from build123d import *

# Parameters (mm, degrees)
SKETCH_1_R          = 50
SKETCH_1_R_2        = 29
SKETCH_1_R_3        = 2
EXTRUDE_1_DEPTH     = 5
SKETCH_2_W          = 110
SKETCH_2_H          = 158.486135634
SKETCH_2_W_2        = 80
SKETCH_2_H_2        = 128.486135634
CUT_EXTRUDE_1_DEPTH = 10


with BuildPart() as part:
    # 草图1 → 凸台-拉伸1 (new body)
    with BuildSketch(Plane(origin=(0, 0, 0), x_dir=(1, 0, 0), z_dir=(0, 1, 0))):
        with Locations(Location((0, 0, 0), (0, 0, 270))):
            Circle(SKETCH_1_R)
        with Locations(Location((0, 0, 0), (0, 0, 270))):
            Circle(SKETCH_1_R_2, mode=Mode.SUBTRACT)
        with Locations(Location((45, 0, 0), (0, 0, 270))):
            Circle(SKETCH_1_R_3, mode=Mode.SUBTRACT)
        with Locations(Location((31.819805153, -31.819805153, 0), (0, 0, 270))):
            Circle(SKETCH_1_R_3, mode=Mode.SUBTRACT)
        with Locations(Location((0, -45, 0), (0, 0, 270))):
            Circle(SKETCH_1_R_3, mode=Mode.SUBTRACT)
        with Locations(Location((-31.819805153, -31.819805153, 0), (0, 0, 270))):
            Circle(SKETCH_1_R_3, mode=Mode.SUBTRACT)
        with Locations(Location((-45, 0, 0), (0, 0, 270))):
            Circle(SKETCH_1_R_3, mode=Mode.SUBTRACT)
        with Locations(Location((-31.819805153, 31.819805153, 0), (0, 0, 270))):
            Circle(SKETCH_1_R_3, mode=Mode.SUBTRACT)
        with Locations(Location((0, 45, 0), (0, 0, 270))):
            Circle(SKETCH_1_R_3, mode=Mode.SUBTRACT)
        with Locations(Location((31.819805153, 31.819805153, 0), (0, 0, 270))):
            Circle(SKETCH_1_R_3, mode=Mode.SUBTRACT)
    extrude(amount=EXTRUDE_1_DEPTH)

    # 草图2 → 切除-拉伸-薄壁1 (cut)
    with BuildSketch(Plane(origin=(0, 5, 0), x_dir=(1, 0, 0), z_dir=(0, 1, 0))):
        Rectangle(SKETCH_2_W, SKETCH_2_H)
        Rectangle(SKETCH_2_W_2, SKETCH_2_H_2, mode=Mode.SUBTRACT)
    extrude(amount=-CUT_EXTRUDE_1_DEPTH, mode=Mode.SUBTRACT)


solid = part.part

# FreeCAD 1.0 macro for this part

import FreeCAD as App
import Part
import Sketcher

V = App.Vector
Q = App.Units.Quantity


def add_polygon(sketch, points):
    """Adds a closed chain of lines whose ends are joined by coincident constraints."""
    first, n = sketch.GeometryCount, len(points)
    for a, b in zip(points, points[1:] + points[:1]):
        sketch.addGeometry(Part.LineSegment(App.Vector(*a, 0), App.Vector(*b, 0)), False)
    for i in range(n):
        sketch.addConstraint(Sketcher.Constraint("Coincident", first + i, 2, first + (i + 1) % n, 1))

doc = App.newDocument("Part")
body = doc.addObject("PartDesign::Body", "Body")

sketch1 = doc.addObject("Sketcher::SketchObject", "Sketch")
body.addObject(sketch1)
sketch1.AttachmentSupport = (doc.XZ_Plane, [""])
sketch1.MapMode = "FlatFace"
sketch1.addGeometry([
    Part.Circle(V(0, 0, 0), V(0, 0, 1), 50),
    Part.Circle(V(-31.8, -31.8, 0), V(0, 0, 1), 2),
    Part.Circle(V(0, -45, 0), V(0, 0, 1), 2),
    Part.Circle(V(-45, 0, 0), V(0, 0, 1), 2),
    Part.Circle(V(-31.8, 31.8, 0), V(0, 0, 1), 2),
    Part.Circle(V(31.8, -31.8, 0), V(0, 0, 1), 2),
    Part.Circle(V(45, 0, 0), V(0, 0, 1), 2),
    Part.Circle(V(0, 0, 0), V(0, 0, 1), 29),
    Part.Circle(V(0, 45, 0), V(0, 0, 1), 2),
    Part.Circle(V(31.8, 31.8, 0), V(0, 0, 1), 2),
], False)
sketch1.addConstraint([
    Sketcher.Constraint("Coincident", 0, 3, -1, 1),
    Sketcher.Constraint("Coincident", 7, 3, -1, 1),
    Sketcher.Constraint("Equal", 1, 2),
    Sketcher.Constraint("Equal", 2, 3),
    Sketcher.Constraint("Equal", 3, 4),
    Sketcher.Constraint("Equal", 4, 5),
    Sketcher.Constraint("Equal", 5, 6),
    Sketcher.Constraint("Equal", 6, 8),
    Sketcher.Constraint("Equal", 8, 9),
    Sketcher.Constraint("Symmetric", 4, 3, 5, 3, -1, 1),
    Sketcher.Constraint("Symmetric", 3, 3, 6, 3, -1, 1),
    Sketcher.Constraint("Symmetric", 2, 3, 8, 3, -1, 1),
    Sketcher.Constraint("Symmetric", 1, 3, 9, 3, -1, 1),
    Sketcher.Constraint("Symmetric", 1, 3, 5, 3, -2),
    Sketcher.Constraint("PointOnObject", 2, 3, -2),
    Sketcher.Constraint("PointOnObject", 3, 3, -1),
    Sketcher.Constraint("Diameter", 0, Q("100 mm")),
    Sketcher.Constraint("Diameter", 1, Q("4 mm")),
    Sketcher.Constraint("Diameter", 7, Q("58 mm")),
    Sketcher.Constraint("DistanceY", 2, 3, -1, 1, Q("45 mm")),
    Sketcher.Constraint("DistanceX", 3, 3, -1, 1, Q("45 mm")),
    Sketcher.Constraint("DistanceY", 1, 3, 4, 3, Q("63.63961 mm")),
    Sketcher.Constraint("DistanceX", 1, 3, 5, 3, Q("63.63961 mm")),
])
pad1 = doc.addObject("PartDesign::Pad", "Pad")
body.addObject(pad1)
pad1.Profile = sketch1
pad1.Length = 5
pad1.Reversed = True

sketch2 = doc.addObject("Sketcher::SketchObject", "Sketch001")
body.addObject(sketch2)
sketch2.AttachmentSupport = (doc.XZ_Plane, [""])
sketch2.MapMode = "FlatFace"
sketch2.AttachmentOffset = App.Placement(V(0, 0, -5), App.Rotation())
add_polygon(sketch2, [(-55, -79), (-55, 79), (55, 79), (55, -79)])
add_polygon(sketch2, [(40, 64), (-40, 64), (-40, -64), (40, -64)])
sketch2.addConstraint([
    Sketcher.Constraint("Vertical", 0),
    Sketcher.Constraint("Horizontal", 1),
    Sketcher.Constraint("Vertical", 2),
    Sketcher.Constraint("Horizontal", 3),
    Sketcher.Constraint("Horizontal", 4),
    Sketcher.Constraint("Vertical", 5),
    Sketcher.Constraint("Horizontal", 6),
    Sketcher.Constraint("Vertical", 7),
    Sketcher.Constraint("Symmetric", 0, 2, 2, 2, -1, 1),
    Sketcher.Constraint("Symmetric", 4, 2, 6, 2, -1, 1),
    Sketcher.Constraint("DistanceX", 1, 1, 1, 2, Q("110 mm")),
    Sketcher.Constraint("DistanceX", 4, 2, 4, 1, Q("80 mm")),
    Sketcher.Constraint("DistanceY", 4, 2, 0, 2, Q("15 mm")),
    Sketcher.Constraint("DistanceY", 0, 1, 0, 2, Q("158.486136 mm")),
])
pocket1 = doc.addObject("PartDesign::Pocket", "Pocket")
body.addObject(pocket1)
pocket1.Profile = sketch2
pocket1.Length = 10
pocket1.Reversed = True

doc.recompute()
